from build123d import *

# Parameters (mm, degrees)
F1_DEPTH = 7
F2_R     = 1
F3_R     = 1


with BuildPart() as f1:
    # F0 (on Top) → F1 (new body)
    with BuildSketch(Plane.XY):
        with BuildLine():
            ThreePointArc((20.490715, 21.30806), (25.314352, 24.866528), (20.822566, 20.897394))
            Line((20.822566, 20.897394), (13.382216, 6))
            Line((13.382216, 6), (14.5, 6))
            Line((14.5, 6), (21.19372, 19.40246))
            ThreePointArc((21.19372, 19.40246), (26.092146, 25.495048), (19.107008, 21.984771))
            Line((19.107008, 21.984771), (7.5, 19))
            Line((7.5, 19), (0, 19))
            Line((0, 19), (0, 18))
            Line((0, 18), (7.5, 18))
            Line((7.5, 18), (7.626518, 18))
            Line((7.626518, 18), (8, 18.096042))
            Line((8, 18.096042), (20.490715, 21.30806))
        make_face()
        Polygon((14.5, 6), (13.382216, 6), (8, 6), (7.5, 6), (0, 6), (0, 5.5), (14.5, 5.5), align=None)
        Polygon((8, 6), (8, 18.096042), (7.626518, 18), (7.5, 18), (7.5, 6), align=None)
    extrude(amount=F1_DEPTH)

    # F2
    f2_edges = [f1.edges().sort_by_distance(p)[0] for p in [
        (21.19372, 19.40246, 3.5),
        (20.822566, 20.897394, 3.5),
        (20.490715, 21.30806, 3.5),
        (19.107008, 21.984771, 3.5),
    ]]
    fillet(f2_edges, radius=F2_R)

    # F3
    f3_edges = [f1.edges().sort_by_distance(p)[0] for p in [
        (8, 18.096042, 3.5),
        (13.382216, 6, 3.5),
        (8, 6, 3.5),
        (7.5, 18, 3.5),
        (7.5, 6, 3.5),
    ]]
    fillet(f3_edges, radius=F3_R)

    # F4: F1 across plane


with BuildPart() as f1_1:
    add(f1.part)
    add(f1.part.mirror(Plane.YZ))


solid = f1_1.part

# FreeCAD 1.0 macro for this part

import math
import FreeCAD as App
import Part
import Sketcher

V = App.Vector
Q = App.Units.Quantity


def edges_at(feature, points):
    """Names of the edges that pass closest to the given points."""
    edges = feature.Shape.Edges
    near = lambda p: min(range(len(edges)), key=lambda i: edges[i].distToShape(Part.Vertex(*p))[0])
    return sorted({f"Edge{near(p) + 1}" for p in points})

doc = App.newDocument("Part")
body = doc.addObject("PartDesign::Body", "Body")

sketch1 = doc.addObject("Sketcher::SketchObject", "Sketch")
body.addObject(sketch1)
sketch1.AttachmentSupport = (doc.XY_Plane, [""])
sketch1.MapMode = "FlatFace"
sketch1.addGeometry(Part.LineSegment(V(7.5, 6, 0), V(0, 6, 0)), False)
sketch1.addGeometry(Part.LineSegment(V(0, 6, 0), V(0, 5.5, 0)), False)
sketch1.addGeometry(Part.LineSegment(V(0, 5.5, 0), V(14.5, 5.5, 0)), False)
sketch1.addGeometry(Part.LineSegment(V(14.5, 5.5, 0), V(14.5, 6, 0)), False)
sketch1.addGeometry(Part.LineSegment(V(14.5, 6, 0), V(21.2, 19.4, 0)), False)
sketch1.addGeometry(Part.ArcOfCircle(Part.Circle(V(23, 23, 0), V(0, 0, 1), 4), math.radians(-117), math.radians(194)), False)
sketch1.addGeometry(Part.LineSegment(V(19.1, 22, 0), V(7.5, 19, 0)), False)
sketch1.addGeometry(Part.LineSegment(V(7.5, 19, 0), V(0, 19, 0)), False)
sketch1.addGeometry(Part.LineSegment(V(0, 19, 0), V(0, 18, 0)), False)
sketch1.addGeometry(Part.LineSegment(V(0, 18, 0), V(7.5, 18, 0)), False)
sketch1.addGeometry(Part.LineSegment(V(7.5, 18, 0), V(7.5, 6, 0)), False)
sketch1.addGeometry(Part.ArcOfCircle(Part.Circle(V(23, 23, 0), V(0, 0, 1), 3), math.radians(-136), math.radians(214)), False)
sketch1.addGeometry(Part.LineSegment(V(20.8, 20.9, 0), V(13.4, 6, 0)), False)
sketch1.addGeometry(Part.LineSegment(V(13.4, 6, 0), V(8, 6, 0)), False)
sketch1.addGeometry(Part.LineSegment(V(8, 6, 0), V(8, 18.1, 0)), False)
sketch1.addGeometry(Part.LineSegment(V(8, 18.1, 0), V(20.5, 21.3, 0)), False)
sketch1.addConstraint(Sketcher.Constraint("Coincident", 0, 2, 1, 1))
sketch1.addConstraint(Sketcher.Constraint("Coincident", 1, 2, 2, 1))
sketch1.addConstraint(Sketcher.Constraint("Coincident", 2, 2, 3, 1))
sketch1.addConstraint(Sketcher.Constraint("Coincident", 3, 2, 4, 1))
sketch1.addConstraint(Sketcher.Constraint("Coincident", 4, 2, 5, 1))
sketch1.addConstraint(Sketcher.Constraint("Coincident", 5, 2, 6, 1))
sketch1.addConstraint(Sketcher.Constraint("Coincident", 6, 2, 7, 1))
sketch1.addConstraint(Sketcher.Constraint("Coincident", 7, 2, 8, 1))
sketch1.addConstraint(Sketcher.Constraint("Coincident", 8, 2, 9, 1))
sketch1.addConstraint(Sketcher.Constraint("Coincident", 9, 2, 10, 1))
sketch1.addConstraint(Sketcher.Constraint("Coincident", 10, 2, 0, 1))
sketch1.addConstraint(Sketcher.Constraint("Coincident", 11, 1, 12, 1))
sketch1.addConstraint(Sketcher.Constraint("Coincident", 12, 2, 13, 1))
sketch1.addConstraint(Sketcher.Constraint("Coincident", 13, 2, 14, 1))
sketch1.addConstraint(Sketcher.Constraint("Coincident", 14, 2, 15, 1))
sketch1.addConstraint(Sketcher.Constraint("Coincident", 15, 2, 11, 2))
sketch1.addConstraint(Sketcher.Constraint("Horizontal", 0))
sketch1.addConstraint(Sketcher.Constraint("Vertical", 1))
sketch1.addConstraint(Sketcher.Constraint("Horizontal", 2))
sketch1.addConstraint(Sketcher.Constraint("Vertical", 3))
sketch1.addConstraint(Sketcher.Constraint("Horizontal", 7))
sketch1.addConstraint(Sketcher.Constraint("Vertical", 8))
sketch1.addConstraint(Sketcher.Constraint("Horizontal", 9))
sketch1.addConstraint(Sketcher.Constraint("Vertical", 10))
sketch1.addConstraint(Sketcher.Constraint("Horizontal", 13))
sketch1.addConstraint(Sketcher.Constraint("Vertical", 14))
sketch1.addConstraint(Sketcher.Constraint("Coincident", 11, 3, 5, 3))
sketch1.addConstraint(Sketcher.Constraint("PointOnObject", 0, 2, -2))
sketch1.addConstraint(Sketcher.Constraint("PointOnObject", 7, 2, -2))
sketch1.addConstraint(Sketcher.Constraint("Parallel", 4, 12))
sketch1.addConstraint(Sketcher.Constraint("Parallel", 6, 15))
sketch1.addConstraint(Sketcher.Constraint("Horizontal", 0, 2, 3, 2))
sketch1.addConstraint(Sketcher.Constraint("Horizontal", 10, 2, 12, 2))
sketch1.addConstraint(Sketcher.Constraint("Vertical", 6, 2, 9, 2))
sketch1.addConstraint(Sketcher.Constraint("Radius", 5, Q("4 mm")))
sketch1.addConstraint(Sketcher.Constraint("Radius", 11, Q("3 mm")))
sketch1.addConstraint(Sketcher.Constraint("DistanceY", 8, 2, 8, 1, Q("1 mm")))
sketch1.addConstraint(Sketcher.Constraint("DistanceY", 10, 2, 10, 1, Q("12 mm")))
sketch1.addConstraint(Sketcher.Constraint("DistanceX", 0, 2, 0, 1, Q("7.5 mm")))
sketch1.addConstraint(Sketcher.Constraint("DistanceX", 2, 1, 2, 2, Q("14.5 mm")))
sketch1.addConstraint(Sketcher.Constraint("DistanceY", 1, 2, 1, 1, Q("0.5 mm")))
sketch1.addConstraint(Sketcher.Constraint("DistanceY", -1, 1, 0, 2, Q("6 mm")))
sketch1.addConstraint(Sketcher.Constraint("DistanceX", -1, 1, 13, 2, Q("8 mm")))
sketch1.addConstraint(Sketcher.Constraint("DistanceY", 5, 2, 11, 3, Q("0.9962 mm")))
sketch1.addConstraint(Sketcher.Constraint("DistanceY", 4, 2, 15, 2, Q("1.9056 mm")))
sketch1.addConstraint(Sketcher.Constraint("Distance", 4, Q("14.981049 mm")))
sketch1.addConstraint(Sketcher.Constraint("Distance", 12, Q("16.652062 mm")))
sketch1.addConstraint(Sketcher.Constraint("DistanceX", 13, 2, 13, 1, Q("5.382216 mm")))
sketch1.addConstraint(Sketcher.Constraint("DistanceY", 14, 1, 14, 2, Q("12.096042 mm")))
pad1 = doc.addObject("PartDesign::Pad", "Pad")
body.addObject(pad1)
pad1.Profile = sketch1
pad1.Length = 7
doc.recompute()

fillet = doc.addObject("PartDesign::Fillet", "Fillet")
body.addObject(fillet)
fillet.Base = (pad1, edges_at(pad1, [
    (21.194, 19.402, 3.5),
    (20.823, 20.897, 3.5),
    (20.491, 21.308, 3.5),
    (19.107, 21.985, 3.5),
]))
fillet.Radius = 1
doc.recompute()

fillet2 = doc.addObject("PartDesign::Fillet", "Fillet001")
body.addObject(fillet2)
fillet2.Base = (fillet, edges_at(fillet, [
    (8, 18.096, 3.5),
    (13.382, 6, 3.5),
    (8, 6, 3.5),
    (7.5, 18, 3.5),
    (7.5, 6, 3.5),
]))
fillet2.Radius = 1
body2 = doc.addObject("PartDesign::Body", "Body001")
doc.recompute()

body2.BaseFeature = body
doc.recompute()

mirroring = doc.addObject("Part::Mirroring", "Mirroring")
mirroring.Source = body
mirroring.Base = V(0, 0, 0)
mirroring.Normal = V(1, 0, 0)
body3 = doc.addObject("PartDesign::Body", "Body002")
body3.BaseFeature = mirroring
boolean = doc.addObject("PartDesign::Boolean", "Boolean")
body2.addObject(boolean)
boolean.Type = "Fuse"
boolean.addObjects([body3])
doc.recompute()
mirroring.Visibility = False

doc.recompute()
